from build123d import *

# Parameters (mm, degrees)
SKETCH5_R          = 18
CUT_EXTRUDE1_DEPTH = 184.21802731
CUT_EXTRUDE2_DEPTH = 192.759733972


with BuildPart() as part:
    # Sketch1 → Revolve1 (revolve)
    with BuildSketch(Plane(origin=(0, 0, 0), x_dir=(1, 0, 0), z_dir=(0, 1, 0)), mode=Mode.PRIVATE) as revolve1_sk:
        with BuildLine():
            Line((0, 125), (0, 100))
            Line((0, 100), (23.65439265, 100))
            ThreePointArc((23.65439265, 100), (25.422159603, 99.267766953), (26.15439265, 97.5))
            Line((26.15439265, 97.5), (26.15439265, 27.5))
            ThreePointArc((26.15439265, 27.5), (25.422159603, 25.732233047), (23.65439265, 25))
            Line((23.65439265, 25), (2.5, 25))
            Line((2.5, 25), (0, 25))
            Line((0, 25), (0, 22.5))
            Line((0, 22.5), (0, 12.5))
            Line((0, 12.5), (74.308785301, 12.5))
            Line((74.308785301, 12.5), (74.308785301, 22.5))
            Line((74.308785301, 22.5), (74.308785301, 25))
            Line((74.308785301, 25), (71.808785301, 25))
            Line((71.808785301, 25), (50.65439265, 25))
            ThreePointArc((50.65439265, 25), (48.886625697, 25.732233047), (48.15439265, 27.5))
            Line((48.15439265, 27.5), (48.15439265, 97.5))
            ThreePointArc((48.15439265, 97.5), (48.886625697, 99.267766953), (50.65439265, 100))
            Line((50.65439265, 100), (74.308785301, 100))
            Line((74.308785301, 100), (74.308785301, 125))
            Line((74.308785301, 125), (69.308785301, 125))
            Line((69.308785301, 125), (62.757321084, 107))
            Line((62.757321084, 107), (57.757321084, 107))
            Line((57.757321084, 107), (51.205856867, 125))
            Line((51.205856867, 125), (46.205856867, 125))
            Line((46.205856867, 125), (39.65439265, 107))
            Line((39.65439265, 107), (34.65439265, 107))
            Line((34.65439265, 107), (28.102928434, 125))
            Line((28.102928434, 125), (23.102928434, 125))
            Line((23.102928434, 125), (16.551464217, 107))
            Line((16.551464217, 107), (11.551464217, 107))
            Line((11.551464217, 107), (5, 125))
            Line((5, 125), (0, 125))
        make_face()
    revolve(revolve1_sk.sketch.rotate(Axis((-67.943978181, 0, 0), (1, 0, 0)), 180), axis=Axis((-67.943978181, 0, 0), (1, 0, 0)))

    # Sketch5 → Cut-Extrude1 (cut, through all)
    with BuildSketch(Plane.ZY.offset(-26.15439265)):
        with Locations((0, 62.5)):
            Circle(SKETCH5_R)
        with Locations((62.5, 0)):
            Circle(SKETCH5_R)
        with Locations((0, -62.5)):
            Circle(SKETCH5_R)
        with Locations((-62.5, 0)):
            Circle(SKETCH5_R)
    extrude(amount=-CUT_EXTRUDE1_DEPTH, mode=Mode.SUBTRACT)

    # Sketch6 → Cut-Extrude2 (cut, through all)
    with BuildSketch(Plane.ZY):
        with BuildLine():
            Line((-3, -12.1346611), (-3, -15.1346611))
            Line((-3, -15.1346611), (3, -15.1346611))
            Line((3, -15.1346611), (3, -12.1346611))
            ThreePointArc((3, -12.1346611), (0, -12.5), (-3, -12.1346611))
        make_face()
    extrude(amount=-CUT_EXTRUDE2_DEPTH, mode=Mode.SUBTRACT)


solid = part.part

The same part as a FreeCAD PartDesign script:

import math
import FreeCAD as App
import Part
import Sketcher
Q = App.Units.Quantity

doc = App.newDocument("Part")
body = doc.addObject("PartDesign::Body", "Body")

sketch1 = body.newObject("Sketcher::SketchObject", "Sketch")
sketch1.AttachmentSupport = (doc.getObject("XZ_Plane"), [""])
sketch1.MapMode = "FlatFace"
sketch1.addGeometry(Part.LineSegment(App.Vector(0, -125, 0), App.Vector(0, -100, 0)), False)
sketch1.addGeometry(Part.LineSegment(App.Vector(0, -100, 0), App.Vector(23.7, -100, 0)), False)
sketch1.addGeometry(Part.ArcOfCircle(Part.Circle(App.Vector(23.7, -97.5, 0), App.Vector(0, 0, 1), 2.5), math.radians(-90), math.radians(0)), False)
sketch1.addGeometry(Part.LineSegment(App.Vector(26.2, -97.5, 0), App.Vector(26.2, -27.5, 0)), False)
sketch1.addGeometry(Part.ArcOfCircle(Part.Circle(App.Vector(23.7, -27.5, 0), App.Vector(0, 0, 1), 2.5), math.radians(0), math.radians(90)), False)
sketch1.addGeometry(Part.LineSegment(App.Vector(23.7, -25, 0), App.Vector(0, -25, 0)), False)
sketch1.addGeometry(Part.LineSegment(App.Vector(0, -25, 0), App.Vector(0, -12.5, 0)), False)
sketch1.addGeometry(Part.LineSegment(App.Vector(0, -12.5, 0), App.Vector(74.3, -12.5, 0)), False)
sketch1.addGeometry(Part.LineSegment(App.Vector(74.3, -12.5, 0), App.Vector(74.3, -25, 0)), False)
sketch1.addGeometry(Part.LineSegment(App.Vector(74.3, -25, 0), App.Vector(50.7, -25, 0)), False)
sketch1.addGeometry(Part.ArcOfCircle(Part.Circle(App.Vector(50.7, -27.5, 0), App.Vector(0, 0, 1), 2.5), math.radians(90), math.radians(180)), False)
sketch1.addGeometry(Part.LineSegment(App.Vector(48.2, -27.5, 0), App.Vector(48.2, -97.5, 0)), False)
sketch1.addGeometry(Part.ArcOfCircle(Part.Circle(App.Vector(50.7, -97.5, 0), App.Vector(0, 0, 1), 2.5), math.radians(180), math.radians(270)), False)
sketch1.addGeometry(Part.LineSegment(App.Vector(50.7, -100, 0), App.Vector(74.3, -100, 0)), False)
sketch1.addGeometry(Part.LineSegment(App.Vector(74.3, -100, 0), App.Vector(74.3, -125, 0)), False)
sketch1.addGeometry(Part.LineSegment(App.Vector(74.3, -125, 0), App.Vector(69.3, -125, 0)), False)
sketch1.addGeometry(Part.LineSegment(App.Vector(69.3, -125, 0), App.Vector(62.8, -107, 0)), False)
sketch1.addGeometry(Part.LineSegment(App.Vector(62.8, -107, 0), App.Vector(57.8, -107, 0)), False)
sketch1.addGeometry(Part.LineSegment(App.Vector(57.8, -107, 0), App.Vector(51.2, -125, 0)), False)
sketch1.addGeometry(Part.LineSegment(App.Vector(51.2, -125, 0), App.Vector(46.2, -125, 0)), False)
sketch1.addGeometry(Part.LineSegment(App.Vector(46.2, -125, 0), App.Vector(39.7, -107, 0)), False)
sketch1.addGeometry(Part.LineSegment(App.Vector(39.7, -107, 0), App.Vector(34.7, -107, 0)), False)
sketch1.addGeometry(Part.LineSegment(App.Vector(34.7, -107, 0), App.Vector(28.1, -125, 0)), False)
sketch1.addGeometry(Part.LineSegment(App.Vector(28.1, -125, 0), App.Vector(23.1, -125, 0)), False)
sketch1.addGeometry(Part.LineSegment(App.Vector(23.1, -125, 0), App.Vector(16.6, -107, 0)), False)
sketch1.addGeometry(Part.LineSegment(App.Vector(16.6, -107, 0), App.Vector(11.6, -107, 0)), False)
sketch1.addGeometry(Part.LineSegment(App.Vector(11.6, -107, 0), App.Vector(5, -125, 0)), False)
sketch1.addGeometry(Part.LineSegment(App.Vector(5, -125, 0), App.Vector(0, -125, 0)), False)
sketch1.addConstraint(Sketcher.Constraint("Coincident", 0, 2, 1, 1))
sketch1.addConstraint(Sketcher.Constraint("Tangent", 1, 2, 2, 1))
sketch1.addConstraint(Sketcher.Constraint("Tangent", 2, 2, 3, 1))
sketch1.addConstraint(Sketcher.Constraint("Tangent", 3, 2, 4, 1))
sketch1.addConstraint(Sketcher.Constraint("Tangent", 4, 2, 5, 1))
sketch1.addConstraint(Sketcher.Constraint("Coincident", 5, 2, 6, 1))
sketch1.addConstraint(Sketcher.Constraint("Coincident", 6, 2, 7, 1))
sketch1.addConstraint(Sketcher.Constraint("Coincident", 7, 2, 8, 1))
sketch1.addConstraint(Sketcher.Constraint("Coincident", 8, 2, 9, 1))
sketch1.addConstraint(Sketcher.Constraint("Tangent", 9, 2, 10, 1))
sketch1.addConstraint(Sketcher.Constraint("Tangent", 10, 2, 11, 1))
sketch1.addConstraint(Sketcher.Constraint("Tangent", 11, 2, 12, 1))
sketch1.addConstraint(Sketcher.Constraint("Tangent", 12, 2, 13, 1))
sketch1.addConstraint(Sketcher.Constraint("Coincident", 13, 2, 14, 1))
sketch1.addConstraint(Sketcher.Constraint("Coincident", 14, 2, 15, 1))
sketch1.addConstraint(Sketcher.Constraint("Coincident", 15, 2, 16, 1))
sketch1.addConstraint(Sketcher.Constraint("Coincident", 16, 2, 17, 1))
sketch1.addConstraint(Sketcher.Constraint("Coincident", 17, 2, 18, 1))
sketch1.addConstraint(Sketcher.Constraint("Coincident", 18, 2, 19, 1))
sketch1.addConstraint(Sketcher.Constraint("Coincident", 19, 2, 20, 1))
sketch1.addConstraint(Sketcher.Constraint("Coincident", 20, 2, 21, 1))
sketch1.addConstraint(Sketcher.Constraint("Coincident", 21, 2, 22, 1))
sketch1.addConstraint(Sketcher.Constraint("Coincident", 22, 2, 23, 1))
sketch1.addConstraint(Sketcher.Constraint("Coincident", 23, 2, 24, 1))
sketch1.addConstraint(Sketcher.Constraint("Coincident", 24, 2, 25, 1))
sketch1.addConstraint(Sketcher.Constraint("Coincident", 25, 2, 26, 1))
sketch1.addConstraint(Sketcher.Constraint("Coincident", 26, 2, 27, 1))
sketch1.addConstraint(Sketcher.Constraint("Coincident", 27, 2, 0, 1))
sketch1.addConstraint(Sketcher.Constraint("Vertical", 0))
sketch1.addConstraint(Sketcher.Constraint("Horizontal", 1))
sketch1.addConstraint(Sketcher.Constraint("Vertical", 3))
sketch1.addConstraint(Sketcher.Constraint("Horizontal", 5))
sketch1.addConstraint(Sketcher.Constraint("Vertical", 6))
sketch1.addConstraint(Sketcher.Constraint("Horizontal", 7))
sketch1.addConstraint(Sketcher.Constraint("Vertical", 8))
sketch1.addConstraint(Sketcher.Constraint("Horizontal", 9))
sketch1.addConstraint(Sketcher.Constraint("Vertical", 11))
sketch1.addConstraint(Sketcher.Constraint("Horizontal", 13))
sketch1.addConstraint(Sketcher.Constraint("Vertical", 14))
sketch1.addConstraint(Sketcher.Constraint("Horizontal", 15))
sketch1.addConstraint(Sketcher.Constraint("Horizontal", 17))
sketch1.addConstraint(Sketcher.Constraint("Horizontal", 19))
sketch1.addConstraint(Sketcher.Constraint("Horizontal", 21))
sketch1.addConstraint(Sketcher.Constraint("Horizontal", 23))
sketch1.addConstraint(Sketcher.Constraint("Horizontal", 25))
sketch1.addConstraint(Sketcher.Constraint("Horizontal", 27))
sketch1.addConstraint(Sketcher.Constraint("Equal", 2, 4))
sketch1.addConstraint(Sketcher.Constraint("Equal", 4, 10))
sketch1.addConstraint(Sketcher.Constraint("Equal", 10, 12))
sketch1.addConstraint(Sketcher.Constraint("PointOnObject", 0, 2, -2))
sketch1.addConstraint(Sketcher.Constraint("PointOnObject", 5, 2, -2))
sketch1.addConstraint(Sketcher.Constraint("Parallel", 16, 20))
sketch1.addConstraint(Sketcher.Constraint("Parallel", 18, 22))
sketch1.addConstraint(Sketcher.Constraint("Parallel", 20, 24))
sketch1.addConstraint(Sketcher.Constraint("Parallel", 22, 26))
sketch1.addConstraint(Sketcher.Constraint("Horizontal", 4, 3, 10, 3))
sketch1.addConstraint(Sketcher.Constraint("Horizontal", 2, 3, 12, 3))
sketch1.addConstraint(Sketcher.Constraint("Horizontal", 15, 2, 18, 2))
sketch1.addConstraint(Sketcher.Constraint("Horizontal", 17, 2, 20, 2))
sketch1.addConstraint(Sketcher.Constraint("Horizontal", 19, 2, 22, 2))
sketch1.addConstraint(Sketcher.Constraint("Horizontal", 21, 2, 24, 2))
sketch1.addConstraint(Sketcher.Constraint("Horizontal", 23, 2, 26, 2))
sketch1.addConstraint(Sketcher.Constraint("Vertical", 8, 2, 13, 2))
sketch1.addConstraint(Sketcher.Constraint("Equal", 5, 9))
sketch1.addConstraint(Sketcher.Constraint("Equal", 15, 17))
sketch1.addConstraint(Sketcher.Constraint("Equal", 17, 19))
sketch1.addConstraint(Sketcher.Constraint("Equal", 19, 21))
sketch1.addConstraint(Sketcher.Constraint("Equal", 21, 23))
sketch1.addConstraint(Sketcher.Constraint("Equal", 23, 25))
sketch1.addConstraint(Sketcher.Constraint("Equal", 25, 27))
sketch1.addConstraint(Sketcher.Constraint("Equal", 16, 18))
sketch1.addConstraint(Sketcher.Constraint("Radius", 2, Q("2.5 mm")))
sketch1.addConstraint(Sketcher.Constraint("DistanceX", 15, 2, 15, 1, Q("5 mm")))
sketch1.addConstraint(Sketcher.Constraint("DistanceY", 0, 1, 0, 2, Q("25 mm")))
sketch1.addConstraint(Sketcher.Constraint("DistanceY", 3, 1, 3, 2, Q("70 mm")))
sketch1.addConstraint(Sketcher.Constraint("Angle", 16, Q("110 deg")))
sketch1.addConstraint(Sketcher.Constraint("DistanceY", 6, 1, 6, 2, Q("12.5 mm")))
sketch1.addConstraint(Sketcher.Constraint("DistanceY", 0, 2, -1, 1, Q("100 mm")))
sketch1.addConstraint(Sketcher.Constraint("DistanceY", 16, 2, -1, 1, Q("107 mm")))
sketch1.addConstraint(Sketcher.Constraint("DistanceX", 4, 3, 10, 3, Q("27 mm")))
revolution = body.newObject("PartDesign::Revolution", "Revolution")
revolution.Profile = sketch1
revolution.ReferenceAxis = (sketch1, ["H_Axis"])
revolution.Angle = 360

sketch2 = body.newObject("Sketcher::SketchObject", "Sketch001")
sketch2.AttachmentSupport = (doc.getObject("YZ_Plane"), [""])
sketch2.MapMode = "FlatFace"
sketch2.AttachmentOffset = App.Placement(App.Vector(0, 0, 26.154393), App.Rotation())
sketch2.addGeometry(Part.Circle(App.Vector(62, 0, 0), App.Vector(0, 0, 1), 18), False)
sketch2.addGeometry(Part.Circle(App.Vector(0, 62, 0), App.Vector(0, 0, 1), 18), False)
sketch2.addGeometry(Part.Circle(App.Vector(-62, 0, 0), App.Vector(0, 0, 1), 18), False)
sketch2.addGeometry(Part.Circle(App.Vector(0, -62, 0), App.Vector(0, 0, 1), 18), False)
sketch2.addConstraint(Sketcher.Constraint("Equal", 0, 1))
sketch2.addConstraint(Sketcher.Constraint("Equal", 1, 2))
sketch2.addConstraint(Sketcher.Constraint("Equal", 2, 3))
sketch2.addConstraint(Sketcher.Constraint("Symmetric", 0, 3, 2, 3, -1, 1))
sketch2.addConstraint(Sketcher.Constraint("Symmetric", 1, 3, 3, 3, -1, 1))
sketch2.addConstraint(Sketcher.Constraint("PointOnObject", 0, 3, -1))
sketch2.addConstraint(Sketcher.Constraint("PointOnObject", 1, 3, -2))
sketch2.addConstraint(Sketcher.Constraint("Diameter", 0, Q("36 mm")))
sketch2.addConstraint(Sketcher.Constraint("DistanceX", 2, 3, 0, 3, Q("125 mm")))
sketch2.addConstraint(Sketcher.Constraint("DistanceY", 3, 3, 1, 3, Q("125 mm")))
pocket1 = body.newObject("PartDesign::Pocket", "Pocket")
pocket1.Profile = sketch2
pocket1.Type = "ThroughAll"
pocket1.Reversed = True

sketch3 = body.newObject("Sketcher::SketchObject", "Sketch002")
sketch3.AttachmentSupport = (doc.getObject("YZ_Plane"), [""])
sketch3.MapMode = "FlatFace"
sketch3.addGeometry(Part.LineSegment(App.Vector(-12.1, -3, 0), App.Vector(-15.1, -3, 0)), False)
sketch3.addGeometry(Part.LineSegment(App.Vector(-15.1, -3, 0), App.Vector(-15.1, 3, 0)), False)
sketch3.addGeometry(Part.LineSegment(App.Vector(-15.1, 3, 0), App.Vector(-12.1, 3, 0)), False)
sketch3.addGeometry(Part.ArcOfCircle(Part.Circle(App.Vector(0, 0, 0), App.Vector(0, 0, 1), 12.5), math.radians(166), math.radians(194)), False)
sketch3.addConstraint(Sketcher.Constraint("Coincident", 0, 2, 1, 1))
sketch3.addConstraint(Sketcher.Constraint("Coincident", 1, 2, 2, 1))
sketch3.addConstraint(Sketcher.Constraint("Coincident", 2, 2, 3, 1))
sketch3.addConstraint(Sketcher.Constraint("Coincident", 3, 2, 0, 1))
sketch3.addConstraint(Sketcher.Constraint("Horizontal", 0))
sketch3.addConstraint(Sketcher.Constraint("Vertical", 1))
sketch3.addConstraint(Sketcher.Constraint("Horizontal", 2))
sketch3.addConstraint(Sketcher.Constraint("Coincident", 3, 3, -1, 1))
sketch3.addConstraint(Sketcher.Constraint("Vertical", 2, 2, 3, 2))
sketch3.addConstraint(Sketcher.Constraint("Radius", 3, Q("12.5 mm")))
sketch3.addConstraint(Sketcher.Constraint("DistanceX", 0, 2, 0, 1, Q("3 mm")))
sketch3.addConstraint(Sketcher.Constraint("DistanceY", 1, 1, 1, 2, Q("6 mm")))
pocket2 = body.newObject("PartDesign::Pocket", "Pocket001")
pocket2.Profile = sketch3
pocket2.Type = "ThroughAll"
pocket2.Reversed = True

doc.recompute()
